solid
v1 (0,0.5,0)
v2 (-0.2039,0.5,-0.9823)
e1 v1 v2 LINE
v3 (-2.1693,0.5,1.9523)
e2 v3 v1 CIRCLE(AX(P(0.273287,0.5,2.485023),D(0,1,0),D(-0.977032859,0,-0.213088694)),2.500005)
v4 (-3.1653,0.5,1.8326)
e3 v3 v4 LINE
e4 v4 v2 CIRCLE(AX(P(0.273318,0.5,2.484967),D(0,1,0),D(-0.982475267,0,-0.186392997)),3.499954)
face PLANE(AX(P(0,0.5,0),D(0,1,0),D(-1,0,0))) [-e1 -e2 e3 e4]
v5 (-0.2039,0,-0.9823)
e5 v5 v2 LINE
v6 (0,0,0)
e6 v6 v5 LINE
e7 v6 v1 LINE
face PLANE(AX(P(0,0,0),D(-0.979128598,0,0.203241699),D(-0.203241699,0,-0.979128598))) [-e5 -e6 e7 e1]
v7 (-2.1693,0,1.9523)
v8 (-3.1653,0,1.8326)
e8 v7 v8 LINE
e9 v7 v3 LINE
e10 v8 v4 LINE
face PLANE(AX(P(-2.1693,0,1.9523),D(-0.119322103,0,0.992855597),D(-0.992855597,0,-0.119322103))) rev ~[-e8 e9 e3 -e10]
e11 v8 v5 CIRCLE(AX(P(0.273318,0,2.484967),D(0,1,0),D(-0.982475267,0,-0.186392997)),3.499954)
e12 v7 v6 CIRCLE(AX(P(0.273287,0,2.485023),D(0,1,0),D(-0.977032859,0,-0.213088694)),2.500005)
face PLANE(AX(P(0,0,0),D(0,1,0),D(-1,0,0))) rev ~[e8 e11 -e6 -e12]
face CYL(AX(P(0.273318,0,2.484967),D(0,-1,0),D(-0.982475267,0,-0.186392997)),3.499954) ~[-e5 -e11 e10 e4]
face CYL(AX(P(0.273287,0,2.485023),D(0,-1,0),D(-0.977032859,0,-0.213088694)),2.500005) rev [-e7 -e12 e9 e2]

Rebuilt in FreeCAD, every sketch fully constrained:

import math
import FreeCAD as App
import Part
import Sketcher

V = App.Vector

doc = App.newDocument("Part")
body = doc.addObject("PartDesign::Body", "Body")

sketch1 = body.newObject("Sketcher::SketchObject", "Sketch")
sketch1.AttachmentSupport = (doc.getObject("XZ_Plane"), [""])
sketch1.MapMode = "FlatFace"
sketch1.addGeometry(Part.ArcOfCircle(Part.Circle(V(0.2733, 2.485, 0), V(0, 0, 1), 2.500013), math.radians(-96.276159), math.radians(192.302845)), False)
sketch1.addGeometry(Part.LineSegment(V(-2.1693, 1.9523, 0), V(-3.1653, 1.8326, 0)), False)
sketch1.addGeometry(Part.ArcOfCircle(Part.Circle(V(0.2733, 2.485, 0), V(0, 0, 1), 3.499942), math.radians(-97.836314), math.radians(190.742946)), False)
sketch1.addGeometry(Part.LineSegment(V(-0.2039, -0.9823, 0), V(0, 0, 0)), False)
sketch1.addConstraint(Sketcher.Constraint("Coincident", 0, 2, 1, 1))
sketch1.addConstraint(Sketcher.Constraint("Coincident", 1, 2, 2, 2))
sketch1.addConstraint(Sketcher.Constraint("Coincident", 2, 1, 3, 1))
sketch1.addConstraint(Sketcher.Constraint("Coincident", 3, 2, 0, 1))
sketch1.addConstraint(Sketcher.Constraint("Coincident", 3, 2, -1, 1))
sketch1.addConstraint(Sketcher.Constraint("Coincident", 2, 3, 0, 3))
sketch1.addConstraint(Sketcher.Constraint("Radius", 0, 2.5))
sketch1.addConstraint(Sketcher.Constraint("Radius", 2, 3.5))
sketch1.addConstraint(Sketcher.Constraint("DistanceY", -1, 1, 0, 3, 2.485))
sketch1.addConstraint(Sketcher.Constraint("DistanceX", 2, 1, -1, 1, 0.204))
sketch1.addConstraint(Sketcher.Constraint("DistanceX", 1, 2, 0, 2, 0.996))
sketch1.addConstraint(Sketcher.Constraint("Distance", 1, 1.0032))
pad1 = body.newObject("PartDesign::Pad", "Pad")
pad1.Profile = sketch1
pad1.Length = 0.5
pad1.Reversed = True

doc.recompute()
